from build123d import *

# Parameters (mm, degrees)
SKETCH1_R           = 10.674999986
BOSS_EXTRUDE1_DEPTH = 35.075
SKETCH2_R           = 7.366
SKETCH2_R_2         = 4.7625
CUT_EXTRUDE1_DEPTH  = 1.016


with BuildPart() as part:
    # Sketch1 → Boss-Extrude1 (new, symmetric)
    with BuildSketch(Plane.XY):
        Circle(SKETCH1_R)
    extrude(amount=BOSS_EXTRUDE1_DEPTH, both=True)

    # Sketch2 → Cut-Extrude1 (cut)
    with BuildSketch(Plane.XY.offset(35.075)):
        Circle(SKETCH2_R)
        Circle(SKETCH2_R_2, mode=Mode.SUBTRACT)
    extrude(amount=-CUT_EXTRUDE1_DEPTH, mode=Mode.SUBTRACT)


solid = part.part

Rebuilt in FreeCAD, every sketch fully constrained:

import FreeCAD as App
import Part
import Sketcher

V = App.Vector
Q = App.Units.Quantity

doc = App.newDocument("Part")
params = doc.addObject("Spreadsheet::Sheet", "Params")
for row, (alias, value) in enumerate([
    ("pad1_length", "70.15 mm"),
    ("sketch2_diameter", "0.58 in"),
    ("sketch2_diameter2", "0.375 in"),
    ("pocket1_length", "0.04 in"),
], start=1):
    params.set(f"A{row}", alias)
    params.set(f"B{row}", "=" + value)
    params.setAlias(f"B{row}", alias)

body = doc.addObject("PartDesign::Body", "Body")

# Sketch on XY plane
sketch1 = body.newObject("Sketcher::SketchObject", "Sketch")
sketch1.AttachmentSupport = (doc.getObject("XY_Plane"), [""])
sketch1.MapMode = "FlatFace"
sketch1.addGeometry(Part.Circle(V(0, 0, 0), V(0, 0, 1), 10.675), False)
sketch1.addConstraint([
    Sketcher.Constraint("Coincident", 0, 3, -1, 1),
    Sketcher.Constraint("Diameter", 0, 21.35),
])
pad1 = body.newObject("PartDesign::Pad", "Pad")
pad1.Profile = sketch1
pad1.setExpression("Length", "Params.pad1_length")
pad1.Midplane = True

# Sketch on XY plane
sketch2 = body.newObject("Sketcher::SketchObject", "Sketch001")
sketch2.AttachmentSupport = (doc.getObject("XY_Plane"), [""])
sketch2.MapMode = "FlatFace"
sketch2.AttachmentOffset = App.Placement(V(0, 0, 35.075), App.Rotation())
sketch2.addGeometry([
    Part.Circle(V(0, 0, 0), V(0, 0, 1), 7.366),
    Part.Circle(V(0, 0, 0), V(0, 0, 1), 4.7625),
], False)
sketch2.addConstraint([
    Sketcher.Constraint("Coincident", 0, 3, -1, 1),
    Sketcher.Constraint("Coincident", 1, 3, -1, 1),
    Sketcher.Constraint("Diameter", 0, Q("0.58 in")),
    Sketcher.Constraint("Diameter", 1, Q("0.375 in")),
])
sketch2.setExpression("Constraints[2]", "Params.sketch2_diameter")
sketch2.setExpression("Constraints[3]", "Params.sketch2_diameter2")
pocket1 = body.newObject("PartDesign::Pocket", "Pocket")
pocket1.Profile = sketch2
pocket1.setExpression("Length", "Params.pocket1_length")

doc.recompute()
